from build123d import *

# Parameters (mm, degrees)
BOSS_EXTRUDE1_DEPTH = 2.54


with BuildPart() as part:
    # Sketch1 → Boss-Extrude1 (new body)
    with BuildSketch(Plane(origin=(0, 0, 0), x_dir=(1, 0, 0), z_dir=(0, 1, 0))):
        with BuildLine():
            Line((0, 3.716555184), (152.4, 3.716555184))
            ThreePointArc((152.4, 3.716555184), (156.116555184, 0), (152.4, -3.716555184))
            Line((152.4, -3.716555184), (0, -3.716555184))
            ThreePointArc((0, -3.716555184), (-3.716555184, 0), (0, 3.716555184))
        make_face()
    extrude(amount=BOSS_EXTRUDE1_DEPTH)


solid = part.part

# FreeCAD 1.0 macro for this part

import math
import FreeCAD as App
import Part
import Sketcher
Q = App.Units.Quantity

doc = App.newDocument("Part")
body = doc.addObject("PartDesign::Body", "Body")

# Sketch on XZ plane
sketch1 = body.newObject("Sketcher::SketchObject", "Sketch")
sketch1.AttachmentSupport = (doc.getObject("XZ_Plane"), [""])
sketch1.MapMode = "FlatFace"
sketch1.addGeometry([
    Part.LineSegment(App.Vector(152.4, -3.7, 0), App.Vector(0, -3.7, 0)),
    Part.ArcOfCircle(Part.Circle(App.Vector(0, 0, 0), App.Vector(0, 0, 1), 3.7), math.radians(90), math.radians(270)),
    Part.LineSegment(App.Vector(0, 3.7, 0), App.Vector(152.4, 3.7, 0)),
    Part.ArcOfCircle(Part.Circle(App.Vector(152.4, 0, 0), App.Vector(0, 0, 1), 3.7), math.radians(-90), math.radians(90)),
], False)
sketch1.addConstraint([
    Sketcher.Constraint("Tangent", 0, 2, 1, 2),
    Sketcher.Constraint("Tangent", 1, 1, 2, 1),
    Sketcher.Constraint("Tangent", 2, 2, 3, 2),
    Sketcher.Constraint("Tangent", 3, 1, 0, 1),
    Sketcher.Constraint("Horizontal", 0),
    Sketcher.Constraint("Horizontal", 2),
    Sketcher.Constraint("Coincident", 1, 3, -1, 1),
    Sketcher.Constraint("DistanceX", 0, 2, 0, 1, Q("6 in")),
    Sketcher.Constraint("Radius", 1, Q("3.716555 mm")),
])
pad1 = body.newObject("PartDesign::Pad", "Pad")
pad1.Profile = sketch1
pad1.Length = Q("0.1 in")
pad1.Reversed = True

doc.recompute()
